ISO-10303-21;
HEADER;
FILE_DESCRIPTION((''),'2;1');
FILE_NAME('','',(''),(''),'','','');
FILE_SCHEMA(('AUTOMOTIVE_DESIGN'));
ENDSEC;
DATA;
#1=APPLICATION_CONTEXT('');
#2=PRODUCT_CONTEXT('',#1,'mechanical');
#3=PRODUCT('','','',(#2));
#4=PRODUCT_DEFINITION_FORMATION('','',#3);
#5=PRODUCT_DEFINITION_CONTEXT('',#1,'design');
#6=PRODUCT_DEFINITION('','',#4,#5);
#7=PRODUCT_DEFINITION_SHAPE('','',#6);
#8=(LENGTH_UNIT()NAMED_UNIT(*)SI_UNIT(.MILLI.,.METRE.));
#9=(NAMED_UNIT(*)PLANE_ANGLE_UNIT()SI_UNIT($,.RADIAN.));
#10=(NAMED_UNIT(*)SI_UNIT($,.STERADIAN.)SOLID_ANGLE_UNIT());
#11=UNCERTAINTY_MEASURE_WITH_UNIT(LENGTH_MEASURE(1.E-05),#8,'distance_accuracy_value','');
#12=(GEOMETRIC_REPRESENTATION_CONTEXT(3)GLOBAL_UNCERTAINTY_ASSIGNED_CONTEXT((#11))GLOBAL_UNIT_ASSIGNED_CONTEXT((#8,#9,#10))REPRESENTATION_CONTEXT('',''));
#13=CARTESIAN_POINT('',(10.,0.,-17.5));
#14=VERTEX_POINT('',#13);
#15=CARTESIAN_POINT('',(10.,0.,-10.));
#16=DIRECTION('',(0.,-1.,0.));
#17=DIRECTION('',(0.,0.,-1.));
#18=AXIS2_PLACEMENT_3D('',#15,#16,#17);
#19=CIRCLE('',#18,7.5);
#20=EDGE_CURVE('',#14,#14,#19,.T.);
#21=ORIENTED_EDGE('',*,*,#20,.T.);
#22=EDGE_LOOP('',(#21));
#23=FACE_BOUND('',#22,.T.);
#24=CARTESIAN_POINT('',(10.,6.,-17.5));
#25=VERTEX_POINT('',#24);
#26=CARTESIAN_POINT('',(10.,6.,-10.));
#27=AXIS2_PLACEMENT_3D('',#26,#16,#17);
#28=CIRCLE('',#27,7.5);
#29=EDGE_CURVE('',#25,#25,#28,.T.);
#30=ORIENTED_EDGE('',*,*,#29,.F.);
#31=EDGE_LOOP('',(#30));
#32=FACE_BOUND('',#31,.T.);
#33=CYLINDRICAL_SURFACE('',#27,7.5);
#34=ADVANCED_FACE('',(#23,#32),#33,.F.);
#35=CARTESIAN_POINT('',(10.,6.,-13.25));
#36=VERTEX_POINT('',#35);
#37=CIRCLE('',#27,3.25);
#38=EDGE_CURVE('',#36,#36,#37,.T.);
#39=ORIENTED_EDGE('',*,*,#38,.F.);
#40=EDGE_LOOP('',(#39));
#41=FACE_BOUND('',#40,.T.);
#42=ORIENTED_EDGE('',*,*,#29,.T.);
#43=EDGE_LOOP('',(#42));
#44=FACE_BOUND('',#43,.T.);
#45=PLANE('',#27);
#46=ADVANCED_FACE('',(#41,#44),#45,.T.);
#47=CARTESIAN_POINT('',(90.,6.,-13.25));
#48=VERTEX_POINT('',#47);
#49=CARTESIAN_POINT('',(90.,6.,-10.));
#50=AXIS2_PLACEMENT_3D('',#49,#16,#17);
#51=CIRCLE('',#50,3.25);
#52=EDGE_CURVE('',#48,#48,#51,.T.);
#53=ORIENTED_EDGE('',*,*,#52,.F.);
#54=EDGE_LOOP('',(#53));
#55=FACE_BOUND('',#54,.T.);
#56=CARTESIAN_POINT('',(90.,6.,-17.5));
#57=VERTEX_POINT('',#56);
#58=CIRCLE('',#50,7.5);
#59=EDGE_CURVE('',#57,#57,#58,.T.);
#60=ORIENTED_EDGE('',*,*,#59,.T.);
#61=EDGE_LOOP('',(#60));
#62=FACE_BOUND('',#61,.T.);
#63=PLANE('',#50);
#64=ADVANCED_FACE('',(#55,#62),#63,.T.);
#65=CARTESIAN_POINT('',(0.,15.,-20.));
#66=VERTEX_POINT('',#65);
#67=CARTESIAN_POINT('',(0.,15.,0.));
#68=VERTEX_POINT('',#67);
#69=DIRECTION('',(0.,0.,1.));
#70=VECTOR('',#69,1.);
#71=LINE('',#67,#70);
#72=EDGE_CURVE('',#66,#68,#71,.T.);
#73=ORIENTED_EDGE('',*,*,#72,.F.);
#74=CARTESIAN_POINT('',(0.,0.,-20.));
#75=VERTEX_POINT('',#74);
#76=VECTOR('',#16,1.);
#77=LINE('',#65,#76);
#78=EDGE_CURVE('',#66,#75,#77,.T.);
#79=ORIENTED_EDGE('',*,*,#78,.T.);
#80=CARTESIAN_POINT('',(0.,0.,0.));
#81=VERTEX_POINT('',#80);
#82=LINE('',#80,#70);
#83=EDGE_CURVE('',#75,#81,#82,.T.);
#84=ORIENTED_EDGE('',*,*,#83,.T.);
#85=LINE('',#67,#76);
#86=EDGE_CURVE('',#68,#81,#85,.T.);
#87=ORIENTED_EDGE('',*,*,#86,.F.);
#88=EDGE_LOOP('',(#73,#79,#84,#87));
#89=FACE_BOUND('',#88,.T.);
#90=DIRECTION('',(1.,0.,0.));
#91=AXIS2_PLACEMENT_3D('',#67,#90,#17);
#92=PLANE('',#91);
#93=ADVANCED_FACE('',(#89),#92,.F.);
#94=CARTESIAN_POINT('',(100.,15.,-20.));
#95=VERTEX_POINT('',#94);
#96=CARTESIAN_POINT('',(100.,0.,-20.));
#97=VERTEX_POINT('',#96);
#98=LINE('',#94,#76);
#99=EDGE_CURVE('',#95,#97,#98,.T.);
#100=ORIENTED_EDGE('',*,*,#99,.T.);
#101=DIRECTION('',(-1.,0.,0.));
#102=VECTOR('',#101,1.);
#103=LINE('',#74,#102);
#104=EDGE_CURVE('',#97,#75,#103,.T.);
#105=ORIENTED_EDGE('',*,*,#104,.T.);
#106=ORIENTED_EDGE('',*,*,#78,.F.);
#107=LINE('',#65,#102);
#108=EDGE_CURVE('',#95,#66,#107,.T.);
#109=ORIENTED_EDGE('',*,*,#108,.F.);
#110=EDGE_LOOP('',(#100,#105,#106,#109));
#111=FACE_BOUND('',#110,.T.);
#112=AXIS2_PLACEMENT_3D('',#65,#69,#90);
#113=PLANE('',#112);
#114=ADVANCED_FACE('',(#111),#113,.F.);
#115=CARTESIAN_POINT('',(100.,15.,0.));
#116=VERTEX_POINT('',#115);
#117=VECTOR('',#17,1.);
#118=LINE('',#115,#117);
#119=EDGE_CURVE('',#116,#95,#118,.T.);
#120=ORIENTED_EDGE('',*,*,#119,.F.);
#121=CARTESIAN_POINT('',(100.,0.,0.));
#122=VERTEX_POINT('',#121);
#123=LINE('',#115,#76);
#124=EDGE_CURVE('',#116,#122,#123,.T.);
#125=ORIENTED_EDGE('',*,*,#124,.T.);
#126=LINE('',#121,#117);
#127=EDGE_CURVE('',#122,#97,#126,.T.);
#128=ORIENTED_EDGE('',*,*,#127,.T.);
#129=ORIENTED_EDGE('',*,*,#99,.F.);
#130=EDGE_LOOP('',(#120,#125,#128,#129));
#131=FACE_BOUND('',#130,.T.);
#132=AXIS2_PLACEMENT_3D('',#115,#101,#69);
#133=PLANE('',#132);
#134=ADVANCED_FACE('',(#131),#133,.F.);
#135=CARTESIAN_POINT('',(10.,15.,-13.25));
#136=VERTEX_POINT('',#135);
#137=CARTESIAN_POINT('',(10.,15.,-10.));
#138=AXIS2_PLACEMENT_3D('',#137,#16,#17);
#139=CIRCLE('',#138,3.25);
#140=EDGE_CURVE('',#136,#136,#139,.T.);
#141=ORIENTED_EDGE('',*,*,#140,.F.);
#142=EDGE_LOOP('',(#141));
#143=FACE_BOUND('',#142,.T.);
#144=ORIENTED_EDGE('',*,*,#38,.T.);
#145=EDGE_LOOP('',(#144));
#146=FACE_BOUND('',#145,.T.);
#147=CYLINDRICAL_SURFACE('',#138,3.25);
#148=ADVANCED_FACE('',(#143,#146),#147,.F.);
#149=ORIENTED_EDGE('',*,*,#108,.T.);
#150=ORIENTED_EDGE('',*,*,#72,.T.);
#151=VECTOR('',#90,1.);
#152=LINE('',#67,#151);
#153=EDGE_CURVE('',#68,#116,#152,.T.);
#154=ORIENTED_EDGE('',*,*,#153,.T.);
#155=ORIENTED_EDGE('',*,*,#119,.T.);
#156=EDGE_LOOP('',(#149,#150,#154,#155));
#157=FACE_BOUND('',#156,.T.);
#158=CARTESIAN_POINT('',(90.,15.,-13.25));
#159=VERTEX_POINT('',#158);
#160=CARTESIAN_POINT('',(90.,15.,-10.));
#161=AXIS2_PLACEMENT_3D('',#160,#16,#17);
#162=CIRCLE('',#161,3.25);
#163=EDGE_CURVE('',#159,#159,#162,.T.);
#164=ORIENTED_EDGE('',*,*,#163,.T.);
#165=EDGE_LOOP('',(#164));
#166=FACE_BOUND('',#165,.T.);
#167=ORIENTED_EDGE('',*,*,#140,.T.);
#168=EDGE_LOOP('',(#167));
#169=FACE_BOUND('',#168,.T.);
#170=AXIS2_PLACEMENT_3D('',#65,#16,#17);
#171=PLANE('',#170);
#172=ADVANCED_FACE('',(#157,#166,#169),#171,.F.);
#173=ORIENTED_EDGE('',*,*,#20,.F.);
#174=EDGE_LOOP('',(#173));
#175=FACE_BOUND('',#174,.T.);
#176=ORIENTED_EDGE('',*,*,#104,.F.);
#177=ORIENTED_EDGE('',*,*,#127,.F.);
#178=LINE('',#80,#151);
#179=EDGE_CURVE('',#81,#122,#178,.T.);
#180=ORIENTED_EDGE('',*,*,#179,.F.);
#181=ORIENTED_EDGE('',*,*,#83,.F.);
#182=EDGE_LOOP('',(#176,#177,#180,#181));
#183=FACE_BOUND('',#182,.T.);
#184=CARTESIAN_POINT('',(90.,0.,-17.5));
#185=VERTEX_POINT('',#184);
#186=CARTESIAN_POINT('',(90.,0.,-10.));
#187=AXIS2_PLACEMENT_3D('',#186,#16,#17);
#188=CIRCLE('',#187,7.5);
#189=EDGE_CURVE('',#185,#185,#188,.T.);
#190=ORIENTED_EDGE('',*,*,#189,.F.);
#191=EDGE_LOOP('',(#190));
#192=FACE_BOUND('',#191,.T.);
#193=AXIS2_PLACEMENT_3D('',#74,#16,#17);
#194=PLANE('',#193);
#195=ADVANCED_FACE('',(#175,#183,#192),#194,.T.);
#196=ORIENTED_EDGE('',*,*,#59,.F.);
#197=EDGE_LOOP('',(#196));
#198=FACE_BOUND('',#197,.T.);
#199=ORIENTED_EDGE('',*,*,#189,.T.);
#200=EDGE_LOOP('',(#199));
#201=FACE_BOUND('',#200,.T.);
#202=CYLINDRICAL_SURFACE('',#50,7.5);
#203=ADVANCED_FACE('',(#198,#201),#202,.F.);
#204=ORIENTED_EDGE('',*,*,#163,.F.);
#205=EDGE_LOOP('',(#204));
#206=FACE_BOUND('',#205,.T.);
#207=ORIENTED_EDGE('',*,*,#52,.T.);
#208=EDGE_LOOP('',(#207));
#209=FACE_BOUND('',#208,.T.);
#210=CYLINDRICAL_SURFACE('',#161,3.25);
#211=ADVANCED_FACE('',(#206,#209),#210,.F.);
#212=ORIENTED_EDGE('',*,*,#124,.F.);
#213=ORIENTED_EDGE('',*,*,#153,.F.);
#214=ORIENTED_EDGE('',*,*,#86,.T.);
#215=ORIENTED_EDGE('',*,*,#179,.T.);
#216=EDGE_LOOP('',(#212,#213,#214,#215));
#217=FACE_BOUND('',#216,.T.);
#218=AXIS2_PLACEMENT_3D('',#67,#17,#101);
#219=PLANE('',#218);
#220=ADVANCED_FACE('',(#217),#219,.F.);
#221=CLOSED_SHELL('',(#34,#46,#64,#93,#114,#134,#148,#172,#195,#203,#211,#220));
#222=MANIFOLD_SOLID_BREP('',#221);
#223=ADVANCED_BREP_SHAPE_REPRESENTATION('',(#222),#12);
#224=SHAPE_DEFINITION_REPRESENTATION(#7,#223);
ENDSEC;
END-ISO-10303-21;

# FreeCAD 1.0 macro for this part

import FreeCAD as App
import Part
import Sketcher


def add_polygon(sketch, points):
    """Adds a closed chain of lines whose ends are joined by coincident constraints."""
    first, n = sketch.GeometryCount, len(points)
    for a, b in zip(points, points[1:] + points[:1]):
        sketch.addGeometry(Part.LineSegment(App.Vector(*a, 0), App.Vector(*b, 0)), False)
    for i in range(n):
        sketch.addConstraint(Sketcher.Constraint("Coincident", first + i, 2, first + (i + 1) % n, 1))

doc = App.newDocument("Part")
body = doc.addObject("PartDesign::Body", "Body")

sketch1 = body.newObject("Sketcher::SketchObject", "Sketch")
sketch1.AttachmentSupport = (doc.getObject("XZ_Plane"), [""])
sketch1.MapMode = "FlatFace"
add_polygon(sketch1, [(0, -20), (0, 0), (100, 0), (100, -20)])
sketch1.addConstraint(Sketcher.Constraint("Vertical", 0))
sketch1.addConstraint(Sketcher.Constraint("Horizontal", 1))
sketch1.addConstraint(Sketcher.Constraint("Vertical", 2))
sketch1.addConstraint(Sketcher.Constraint("Horizontal", 3))
sketch1.addConstraint(Sketcher.Constraint("Coincident", 0, 2, -1, 1))
sketch1.addConstraint(Sketcher.Constraint("DistanceX", 1, 1, 1, 2, 100.0))
sketch1.addConstraint(Sketcher.Constraint("DistanceY", 0, 1, 0, 2, 20.0))
pad1 = body.newObject("PartDesign::Pad", "Pad")
pad1.Profile = sketch1
pad1.Length = 15
pad1.Reversed = True

sketch2 = body.newObject("Sketcher::SketchObject", "Sketch001")
sketch2.AttachmentSupport = (doc.getObject("XZ_Plane"), [""])
sketch2.MapMode = "FlatFace"
sketch2.addGeometry(Part.Circle(App.Vector(10, -10, 0), App.Vector(0, 0, 1), 7.5), False)
sketch2.addGeometry(Part.Circle(App.Vector(90, -10, 0), App.Vector(0, 0, 1), 7.5), False)
sketch2.addConstraint(Sketcher.Constraint("Equal", 0, 1))
sketch2.addConstraint(Sketcher.Constraint("Horizontal", 0, 3, 1, 3))
sketch2.addConstraint(Sketcher.Constraint("Diameter", 0, 15.0))
sketch2.addConstraint(Sketcher.Constraint("DistanceX", -1, 1, 0, 3, 10.0))
sketch2.addConstraint(Sketcher.Constraint("DistanceY", 0, 3, -1, 1, 10.0))
sketch2.addConstraint(Sketcher.Constraint("DistanceX", -1, 1, 1, 3, 90.0))
pocket1 = body.newObject("PartDesign::Pocket", "Pocket")
pocket1.Profile = sketch2
pocket1.Length = 6

sketch3 = body.newObject("Sketcher::SketchObject", "Sketch002")
sketch3.AttachmentSupport = (doc.getObject("XZ_Plane"), [""])
sketch3.MapMode = "FlatFace"
sketch3.AttachmentOffset = App.Placement(App.Vector(0, 0, -6), App.Rotation())
sketch3.addGeometry(Part.Circle(App.Vector(10, -10, 0), App.Vector(0, 0, 1), 3.25), False)
sketch3.addGeometry(Part.Circle(App.Vector(90, -10, 0), App.Vector(0, 0, 1), 3.25), False)
sketch3.addConstraint(Sketcher.Constraint("Equal", 0, 1))
sketch3.addConstraint(Sketcher.Constraint("Horizontal", 0, 3, 1, 3))
sketch3.addConstraint(Sketcher.Constraint("Diameter", 0, 6.5))
sketch3.addConstraint(Sketcher.Constraint("DistanceX", -1, 1, 0, 3, 10.0))
sketch3.addConstraint(Sketcher.Constraint("DistanceY", 0, 3, -1, 1, 10.0))
sketch3.addConstraint(Sketcher.Constraint("DistanceX", -1, 1, 1, 3, 90.0))
pocket2 = body.newObject("PartDesign::Pocket", "Pocket001")
pocket2.Profile = sketch3
pocket2.Type = "ThroughAll"

doc.recompute()
